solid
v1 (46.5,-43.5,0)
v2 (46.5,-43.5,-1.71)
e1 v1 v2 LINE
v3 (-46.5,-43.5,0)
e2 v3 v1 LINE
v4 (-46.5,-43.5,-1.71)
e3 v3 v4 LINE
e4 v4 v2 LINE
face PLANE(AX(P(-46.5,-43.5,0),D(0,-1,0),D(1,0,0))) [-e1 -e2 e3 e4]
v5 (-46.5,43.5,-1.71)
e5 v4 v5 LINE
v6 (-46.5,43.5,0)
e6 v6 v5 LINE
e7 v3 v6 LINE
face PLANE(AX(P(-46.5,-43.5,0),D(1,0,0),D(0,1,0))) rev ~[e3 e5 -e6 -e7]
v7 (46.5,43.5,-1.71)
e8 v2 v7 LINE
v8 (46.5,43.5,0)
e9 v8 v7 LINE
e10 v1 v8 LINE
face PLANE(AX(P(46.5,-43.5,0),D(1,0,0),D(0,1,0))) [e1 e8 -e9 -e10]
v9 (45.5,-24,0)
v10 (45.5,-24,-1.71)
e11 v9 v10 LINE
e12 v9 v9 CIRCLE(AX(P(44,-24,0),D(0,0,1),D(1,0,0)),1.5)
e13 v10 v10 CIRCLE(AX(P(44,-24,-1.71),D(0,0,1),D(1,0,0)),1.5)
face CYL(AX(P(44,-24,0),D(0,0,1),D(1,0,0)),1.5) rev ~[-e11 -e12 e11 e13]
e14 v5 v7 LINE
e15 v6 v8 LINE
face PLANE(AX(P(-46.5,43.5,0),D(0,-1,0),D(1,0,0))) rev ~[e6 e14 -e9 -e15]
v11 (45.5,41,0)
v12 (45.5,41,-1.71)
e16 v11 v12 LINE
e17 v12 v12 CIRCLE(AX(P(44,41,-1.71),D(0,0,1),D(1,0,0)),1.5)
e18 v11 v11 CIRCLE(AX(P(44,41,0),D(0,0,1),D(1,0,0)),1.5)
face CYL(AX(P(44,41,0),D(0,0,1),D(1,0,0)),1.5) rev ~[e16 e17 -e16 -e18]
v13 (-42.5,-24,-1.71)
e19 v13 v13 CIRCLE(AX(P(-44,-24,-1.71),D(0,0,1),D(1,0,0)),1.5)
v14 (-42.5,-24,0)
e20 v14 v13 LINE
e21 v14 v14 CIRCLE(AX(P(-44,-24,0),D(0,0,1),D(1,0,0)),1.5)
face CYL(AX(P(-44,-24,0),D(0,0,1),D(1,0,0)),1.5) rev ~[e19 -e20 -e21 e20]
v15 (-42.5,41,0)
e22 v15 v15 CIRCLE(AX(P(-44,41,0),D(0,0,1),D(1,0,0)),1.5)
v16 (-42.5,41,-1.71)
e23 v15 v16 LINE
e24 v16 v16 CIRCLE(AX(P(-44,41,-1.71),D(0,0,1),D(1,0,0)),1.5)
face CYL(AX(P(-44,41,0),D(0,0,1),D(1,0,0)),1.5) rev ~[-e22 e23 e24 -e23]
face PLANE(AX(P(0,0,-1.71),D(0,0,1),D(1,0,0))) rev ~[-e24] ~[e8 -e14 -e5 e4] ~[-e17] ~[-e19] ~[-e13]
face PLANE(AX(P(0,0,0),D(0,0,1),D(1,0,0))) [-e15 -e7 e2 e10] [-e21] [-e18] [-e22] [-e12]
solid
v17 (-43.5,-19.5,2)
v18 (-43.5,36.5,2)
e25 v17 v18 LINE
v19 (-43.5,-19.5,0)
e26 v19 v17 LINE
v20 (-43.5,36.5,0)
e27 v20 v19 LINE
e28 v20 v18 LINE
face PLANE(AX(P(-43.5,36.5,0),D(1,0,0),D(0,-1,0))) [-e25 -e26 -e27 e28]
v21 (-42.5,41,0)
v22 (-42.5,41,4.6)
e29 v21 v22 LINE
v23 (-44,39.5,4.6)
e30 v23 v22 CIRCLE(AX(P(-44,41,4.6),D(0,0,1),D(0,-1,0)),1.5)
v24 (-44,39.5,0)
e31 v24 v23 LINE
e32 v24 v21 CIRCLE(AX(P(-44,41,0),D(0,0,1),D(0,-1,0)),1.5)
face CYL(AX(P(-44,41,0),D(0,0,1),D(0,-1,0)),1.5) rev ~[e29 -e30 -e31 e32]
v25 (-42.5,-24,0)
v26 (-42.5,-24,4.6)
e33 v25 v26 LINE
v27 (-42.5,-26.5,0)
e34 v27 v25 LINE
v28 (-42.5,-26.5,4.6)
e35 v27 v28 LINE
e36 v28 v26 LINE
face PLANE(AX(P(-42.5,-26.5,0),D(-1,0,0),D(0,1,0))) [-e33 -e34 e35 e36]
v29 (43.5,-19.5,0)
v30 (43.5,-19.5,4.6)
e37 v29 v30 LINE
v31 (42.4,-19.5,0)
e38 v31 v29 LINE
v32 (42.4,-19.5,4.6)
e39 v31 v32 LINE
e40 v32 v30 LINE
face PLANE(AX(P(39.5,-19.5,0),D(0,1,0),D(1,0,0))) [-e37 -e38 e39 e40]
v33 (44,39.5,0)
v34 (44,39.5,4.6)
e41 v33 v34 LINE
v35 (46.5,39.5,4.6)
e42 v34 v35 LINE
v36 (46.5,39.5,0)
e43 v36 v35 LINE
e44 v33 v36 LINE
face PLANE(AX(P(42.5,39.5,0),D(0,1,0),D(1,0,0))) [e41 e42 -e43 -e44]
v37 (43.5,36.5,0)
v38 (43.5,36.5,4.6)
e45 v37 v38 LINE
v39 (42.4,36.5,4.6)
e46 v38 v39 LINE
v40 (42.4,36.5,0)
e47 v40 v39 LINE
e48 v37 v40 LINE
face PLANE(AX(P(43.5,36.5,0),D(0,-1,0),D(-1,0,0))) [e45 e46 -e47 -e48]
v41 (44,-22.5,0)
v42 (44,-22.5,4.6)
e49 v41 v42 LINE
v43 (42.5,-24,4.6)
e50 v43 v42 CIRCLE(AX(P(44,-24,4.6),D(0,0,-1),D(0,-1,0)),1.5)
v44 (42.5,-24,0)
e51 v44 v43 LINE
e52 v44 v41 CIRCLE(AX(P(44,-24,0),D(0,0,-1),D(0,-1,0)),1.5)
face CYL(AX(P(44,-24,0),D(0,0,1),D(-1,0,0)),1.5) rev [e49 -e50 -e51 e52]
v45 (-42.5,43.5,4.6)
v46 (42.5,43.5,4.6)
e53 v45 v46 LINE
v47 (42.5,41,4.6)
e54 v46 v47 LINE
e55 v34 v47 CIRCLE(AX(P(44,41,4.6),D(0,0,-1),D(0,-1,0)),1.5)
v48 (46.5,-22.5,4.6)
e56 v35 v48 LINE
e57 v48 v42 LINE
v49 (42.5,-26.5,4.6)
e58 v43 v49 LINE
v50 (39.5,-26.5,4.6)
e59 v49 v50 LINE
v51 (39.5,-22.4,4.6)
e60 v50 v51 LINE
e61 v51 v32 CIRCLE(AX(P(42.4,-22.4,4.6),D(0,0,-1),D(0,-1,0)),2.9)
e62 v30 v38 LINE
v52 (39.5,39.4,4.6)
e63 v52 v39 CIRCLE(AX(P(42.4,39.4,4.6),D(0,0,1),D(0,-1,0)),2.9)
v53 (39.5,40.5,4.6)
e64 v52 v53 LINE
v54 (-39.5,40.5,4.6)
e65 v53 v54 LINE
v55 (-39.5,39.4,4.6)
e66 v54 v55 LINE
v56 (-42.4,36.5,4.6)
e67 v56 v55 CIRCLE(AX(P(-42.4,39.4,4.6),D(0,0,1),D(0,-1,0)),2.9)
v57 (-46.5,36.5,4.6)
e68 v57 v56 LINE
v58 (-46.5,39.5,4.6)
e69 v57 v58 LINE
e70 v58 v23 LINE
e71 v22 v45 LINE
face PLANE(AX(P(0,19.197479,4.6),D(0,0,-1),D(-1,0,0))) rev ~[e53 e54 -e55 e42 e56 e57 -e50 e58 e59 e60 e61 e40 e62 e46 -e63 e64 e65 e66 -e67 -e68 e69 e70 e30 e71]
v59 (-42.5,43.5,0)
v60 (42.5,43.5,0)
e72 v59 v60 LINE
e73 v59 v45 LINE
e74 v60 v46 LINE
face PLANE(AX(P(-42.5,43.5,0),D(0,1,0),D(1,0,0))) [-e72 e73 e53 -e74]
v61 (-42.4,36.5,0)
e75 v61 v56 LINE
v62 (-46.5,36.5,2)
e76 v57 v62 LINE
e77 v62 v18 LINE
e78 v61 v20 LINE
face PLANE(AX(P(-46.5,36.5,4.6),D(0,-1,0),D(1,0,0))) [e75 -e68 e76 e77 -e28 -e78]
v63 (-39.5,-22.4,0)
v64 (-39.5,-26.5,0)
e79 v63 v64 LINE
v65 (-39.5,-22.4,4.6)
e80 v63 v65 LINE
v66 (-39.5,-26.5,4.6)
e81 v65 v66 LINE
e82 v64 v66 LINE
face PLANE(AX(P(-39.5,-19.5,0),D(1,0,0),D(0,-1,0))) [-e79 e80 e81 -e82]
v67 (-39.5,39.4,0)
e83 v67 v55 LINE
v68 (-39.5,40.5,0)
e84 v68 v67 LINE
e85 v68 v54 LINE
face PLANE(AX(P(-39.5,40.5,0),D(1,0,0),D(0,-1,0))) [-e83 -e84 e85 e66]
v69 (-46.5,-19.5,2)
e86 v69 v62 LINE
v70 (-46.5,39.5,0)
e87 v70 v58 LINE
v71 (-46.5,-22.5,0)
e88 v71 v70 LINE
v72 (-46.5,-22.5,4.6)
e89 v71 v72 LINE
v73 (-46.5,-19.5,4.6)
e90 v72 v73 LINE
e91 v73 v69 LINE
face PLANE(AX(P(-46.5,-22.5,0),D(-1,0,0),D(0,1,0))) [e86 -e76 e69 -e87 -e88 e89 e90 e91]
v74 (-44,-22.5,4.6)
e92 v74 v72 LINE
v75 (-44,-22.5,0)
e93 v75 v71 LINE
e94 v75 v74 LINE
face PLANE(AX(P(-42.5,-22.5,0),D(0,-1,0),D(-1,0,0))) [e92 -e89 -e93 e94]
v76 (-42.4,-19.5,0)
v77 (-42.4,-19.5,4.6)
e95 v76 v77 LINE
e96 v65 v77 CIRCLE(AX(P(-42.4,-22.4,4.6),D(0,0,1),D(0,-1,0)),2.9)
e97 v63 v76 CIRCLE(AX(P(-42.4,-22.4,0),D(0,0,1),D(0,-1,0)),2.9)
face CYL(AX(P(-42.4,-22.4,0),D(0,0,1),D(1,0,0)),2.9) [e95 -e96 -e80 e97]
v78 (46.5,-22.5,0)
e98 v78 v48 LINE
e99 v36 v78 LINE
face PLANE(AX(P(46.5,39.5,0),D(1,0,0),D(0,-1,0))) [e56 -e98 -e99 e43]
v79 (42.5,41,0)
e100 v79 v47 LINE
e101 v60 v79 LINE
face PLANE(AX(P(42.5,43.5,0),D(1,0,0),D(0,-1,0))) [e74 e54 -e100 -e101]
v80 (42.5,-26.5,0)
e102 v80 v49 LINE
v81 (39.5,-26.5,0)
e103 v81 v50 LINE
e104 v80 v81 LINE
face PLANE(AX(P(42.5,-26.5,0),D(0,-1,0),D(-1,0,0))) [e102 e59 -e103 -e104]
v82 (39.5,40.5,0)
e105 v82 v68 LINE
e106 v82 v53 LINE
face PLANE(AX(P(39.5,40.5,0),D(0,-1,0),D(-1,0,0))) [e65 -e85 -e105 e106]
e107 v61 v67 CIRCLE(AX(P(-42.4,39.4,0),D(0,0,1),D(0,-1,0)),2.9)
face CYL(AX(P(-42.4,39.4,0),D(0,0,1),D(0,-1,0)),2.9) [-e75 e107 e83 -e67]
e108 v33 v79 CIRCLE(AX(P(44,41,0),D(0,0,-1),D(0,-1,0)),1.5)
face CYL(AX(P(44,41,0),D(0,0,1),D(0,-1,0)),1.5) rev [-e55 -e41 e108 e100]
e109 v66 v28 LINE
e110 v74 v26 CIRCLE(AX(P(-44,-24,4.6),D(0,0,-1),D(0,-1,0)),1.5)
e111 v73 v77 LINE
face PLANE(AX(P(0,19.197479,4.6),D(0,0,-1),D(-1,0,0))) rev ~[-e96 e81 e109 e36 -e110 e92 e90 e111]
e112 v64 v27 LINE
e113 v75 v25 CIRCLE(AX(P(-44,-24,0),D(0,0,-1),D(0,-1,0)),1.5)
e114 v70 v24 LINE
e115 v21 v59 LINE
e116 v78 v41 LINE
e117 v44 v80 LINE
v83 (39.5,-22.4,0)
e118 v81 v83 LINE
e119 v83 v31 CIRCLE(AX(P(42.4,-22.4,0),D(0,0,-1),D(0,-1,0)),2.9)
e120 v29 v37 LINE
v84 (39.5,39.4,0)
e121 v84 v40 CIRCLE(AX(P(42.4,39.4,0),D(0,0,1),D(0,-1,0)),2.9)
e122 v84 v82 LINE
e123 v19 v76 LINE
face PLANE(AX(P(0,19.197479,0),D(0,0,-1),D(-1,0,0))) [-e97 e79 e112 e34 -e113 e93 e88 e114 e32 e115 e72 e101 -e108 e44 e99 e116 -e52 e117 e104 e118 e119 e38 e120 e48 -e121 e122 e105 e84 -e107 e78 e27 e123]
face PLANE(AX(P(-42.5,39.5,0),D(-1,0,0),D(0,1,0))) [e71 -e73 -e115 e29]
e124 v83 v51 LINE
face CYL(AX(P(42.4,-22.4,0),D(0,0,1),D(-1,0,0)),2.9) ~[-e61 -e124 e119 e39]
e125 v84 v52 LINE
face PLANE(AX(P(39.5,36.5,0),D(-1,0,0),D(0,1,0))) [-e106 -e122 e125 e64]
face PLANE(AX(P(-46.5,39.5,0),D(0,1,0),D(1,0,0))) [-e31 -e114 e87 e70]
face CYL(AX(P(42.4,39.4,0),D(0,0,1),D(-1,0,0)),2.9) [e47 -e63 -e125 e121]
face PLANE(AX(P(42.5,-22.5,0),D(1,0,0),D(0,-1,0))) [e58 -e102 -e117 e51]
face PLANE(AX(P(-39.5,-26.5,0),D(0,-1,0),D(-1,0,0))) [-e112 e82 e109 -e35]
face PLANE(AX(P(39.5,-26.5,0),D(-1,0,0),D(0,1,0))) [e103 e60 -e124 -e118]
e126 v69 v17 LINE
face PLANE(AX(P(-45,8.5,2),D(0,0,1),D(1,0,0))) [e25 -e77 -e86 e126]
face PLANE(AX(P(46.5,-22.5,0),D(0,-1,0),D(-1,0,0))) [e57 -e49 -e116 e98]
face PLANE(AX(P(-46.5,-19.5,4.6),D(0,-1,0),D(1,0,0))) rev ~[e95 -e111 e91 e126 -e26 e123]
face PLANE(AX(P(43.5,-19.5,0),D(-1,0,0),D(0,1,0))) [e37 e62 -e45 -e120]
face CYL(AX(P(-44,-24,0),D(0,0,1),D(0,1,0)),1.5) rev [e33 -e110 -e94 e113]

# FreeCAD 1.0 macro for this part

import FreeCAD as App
import Part
import Sketcher
from FreeCAD import Vector
Q = App.Units.Quantity


def edges_at(feature, points):
    """Names of the edges that pass closest to the given points."""
    edges = feature.Shape.Edges
    near = lambda p: min(range(len(edges)), key=lambda i: edges[i].distToShape(Part.Vertex(*p))[0])
    return sorted({f"Edge{near(p) + 1}" for p in points})


def add_polygon(sketch, points):
    """Adds a closed chain of lines whose ends are joined by coincident constraints."""
    first, n = sketch.GeometryCount, len(points)
    for a, b in zip(points, points[1:] + points[:1]):
        sketch.addGeometry(Part.LineSegment(App.Vector(*a, 0), App.Vector(*b, 0)), False)
    for i in range(n):
        sketch.addConstraint(Sketcher.Constraint("Coincident", first + i, 2, first + (i + 1) % n, 1))

doc = App.newDocument("Part")
params = doc.addObject("Spreadsheet::Sheet", "Params")
for row, (alias, value) in enumerate([
    ("sketch1_diameter", "3 mm"),
    ("sketch1_width", "93 mm"),
    ("sketch1_height", "87 mm"),
    ("pad1_length", "1.71 mm"),
    ("sketch2_width", "4 mm"),
    ("sketch2_width2", "3 mm"),
    ("sketch2_width3", "79 mm"),
    ("sketch2_height", "62 mm"),
    ("sketch2_height2", "7 mm"),
    ("pad2_length", "4.6 mm"),
    ("sketch3_width", "3 mm"),
    ("sketch3_height", "56 mm"),
    ("pocket1_length", "2.6 mm"),
    ("fillet_radius", "1.5 mm"),
    ("fillet2_radius", "2.9 mm"),
], start=1):
    params.set(f"A{row}", alias)
    params.set(f"B{row}", "=" + value)
    params.setAlias(f"B{row}", alias)

body = doc.addObject("PartDesign::Body", "Body")

# Sketch on XY plane
sketch1 = body.newObject("Sketcher::SketchObject", "Sketch")
sketch1.AttachmentSupport = (doc.getObject("XY_Plane"), [""])
sketch1.MapMode = "FlatFace"
add_polygon(sketch1, [(-46.5, 43.5), (-46.5, -43.5), (46.5, -43.5), (46.5, 43.5)])  # lines 0-3
sketch1.addGeometry(Part.Circle(Vector(-44, -24, 0), Vector(0, 0, 1), 1.5), False)  # 4
sketch1.addGeometry(Part.Circle(Vector(44, -24, 0), Vector(0, 0, 1), 1.5), False)  # 5
sketch1.addGeometry(Part.Circle(Vector(-44, 41, 0), Vector(0, 0, 1), 1.5), False)  # 6
sketch1.addGeometry(Part.Circle(Vector(44, 41, 0), Vector(0, 0, 1), 1.5), False)  # 7
sketch1.addConstraint([
    Sketcher.Constraint("Vertical", 0),
    Sketcher.Constraint("Horizontal", 1),
    Sketcher.Constraint("Vertical", 2),
    Sketcher.Constraint("Horizontal", 3),
    Sketcher.Constraint("Equal", 4, 5),
    Sketcher.Constraint("Equal", 5, 6),
    Sketcher.Constraint("Equal", 6, 7),
    Sketcher.Constraint("Symmetric", 0, 2, 2, 2, -1, 1),
    Sketcher.Constraint("Symmetric", 4, 3, 5, 3, -2),
    Sketcher.Constraint("Symmetric", 6, 3, 7, 3, -2),
    Sketcher.Constraint("Vertical", 4, 3, 6, 3),
    Sketcher.Constraint("Diameter", 4, Q("3 mm")),
    Sketcher.Constraint("DistanceX", 1, 1, 1, 2, Q("93 mm")),
    Sketcher.Constraint("DistanceY", 0, 2, 0, 1, Q("87 mm")),
    Sketcher.Constraint("DistanceX", 4, 3, -1, 1, Q("44 mm")),
    Sketcher.Constraint("DistanceY", 4, 3, -1, 1, Q("24 mm")),
    Sketcher.Constraint("DistanceY", -1, 1, 6, 3, Q("41 mm")),
])
sketch1.setExpression("Constraints[15]", "Params.sketch1_diameter")
sketch1.setExpression("Constraints[16]", "Params.sketch1_width")
sketch1.setExpression("Constraints[17]", "Params.sketch1_height")
pad1 = body.newObject("PartDesign::Pad", "Pad")
pad1.Profile = sketch1
pad1.setExpression("Length", "Params.pad1_length")
pad1.Reversed = True
body2 = doc.addObject("PartDesign::Body", "Body001")

# Sketch on XY plane
sketch2 = body2.newObject("Sketcher::SketchObject", "Sketch001")
sketch2.AttachmentSupport = (doc.getObject("XY_Plane001"), [""])
sketch2.MapMode = "FlatFace"
add_polygon(sketch2, [(-42.5, 39.5), (-46.5, 39.5), (-46.5, -22.5), (-42.5, -22.5), (-42.5, -26.5), (-39.5, -26.5), (-39.5, -19.5), (-43.5, -19.5), (-43.5, 36.5), (-39.5, 36.5), (-39.5, 40.5), (39.5, 40.5), (39.5, 36.5), (43.5, 36.5), (43.5, -19.5), (39.5, -19.5), (39.5, -26.5), (42.5, -26.5), (42.5, -22.5), (46.5, -22.5), (46.5, 39.5), (42.5, 39.5), (42.5, 43.5), (-42.5, 43.5)])  # lines 0-23
sketch2.addConstraint([
    Sketcher.Constraint("Horizontal", 0),
    Sketcher.Constraint("Vertical", 1),
    Sketcher.Constraint("Horizontal", 2),
    Sketcher.Constraint("Vertical", 3),
    Sketcher.Constraint("Horizontal", 4),
    Sketcher.Constraint("Vertical", 5),
    Sketcher.Constraint("Horizontal", 6),
    Sketcher.Constraint("Vertical", 7),
    Sketcher.Constraint("Horizontal", 8),
    Sketcher.Constraint("Vertical", 9),
    Sketcher.Constraint("Horizontal", 10),
    Sketcher.Constraint("Vertical", 11),
    Sketcher.Constraint("Horizontal", 12),
    Sketcher.Constraint("Vertical", 13),
    Sketcher.Constraint("Horizontal", 14),
    Sketcher.Constraint("Vertical", 15),
    Sketcher.Constraint("Horizontal", 16),
    Sketcher.Constraint("Vertical", 17),
    Sketcher.Constraint("Horizontal", 18),
    Sketcher.Constraint("Vertical", 19),
    Sketcher.Constraint("Horizontal", 20),
    Sketcher.Constraint("Vertical", 21),
    Sketcher.Constraint("Horizontal", 22),
    Sketcher.Constraint("Vertical", 23),
    Sketcher.Constraint("Symmetric", 8, 2, 11, 2, -2),
    Sketcher.Constraint("Symmetric", 6, 2, 13, 2, -2),
    Sketcher.Constraint("Symmetric", 4, 2, 15, 2, -2),
    Sketcher.Constraint("Symmetric", 2, 2, 17, 2, -2),
    Sketcher.Constraint("Symmetric", 0, 2, 19, 2, -2),
    Sketcher.Constraint("Vertical", 5, 2, 8, 2),
    Sketcher.Constraint("Vertical", 17, 2, 20, 2),
    Sketcher.Constraint("Vertical", 3, 2, 22, 2),
    Sketcher.Constraint("Equal", 2, 6),
    Sketcher.Constraint("Equal", 20, 3),
    Sketcher.Constraint("Equal", 3, 9),
    Sketcher.Constraint("Equal", 17, 21),
    Sketcher.Constraint("DistanceX", 0, 2, 0, 1, Q("4 mm")),
    Sketcher.Constraint("DistanceX", 4, 1, 4, 2, Q("3 mm")),
    Sketcher.Constraint("DistanceX", 10, 1, 10, 2, Q("79 mm")),
    Sketcher.Constraint("DistanceY", 1, 2, 1, 1, Q("62 mm")),
    Sketcher.Constraint("DistanceY", 5, 1, 5, 2, Q("7 mm")),
    Sketcher.Constraint("DistanceY", 7, 1, 7, 2, Q("56 mm")),
    Sketcher.Constraint("DistanceY", -1, 1, 0, 2, Q("39.5 mm")),
])
sketch2.setExpression("Constraints[60]", "Params.sketch2_width")
sketch2.setExpression("Constraints[61]", "Params.sketch2_width2")
sketch2.setExpression("Constraints[62]", "Params.sketch2_width3")
sketch2.setExpression("Constraints[63]", "Params.sketch2_height")
sketch2.setExpression("Constraints[64]", "Params.sketch2_height2")
pad2 = body2.newObject("PartDesign::Pad", "Pad001")
pad2.Profile = sketch2
pad2.setExpression("Length", "Params.pad2_length")

# Sketch on XY plane
sketch3 = body2.newObject("Sketcher::SketchObject", "Sketch002")
sketch3.AttachmentSupport = (doc.getObject("XY_Plane001"), [""])
sketch3.MapMode = "FlatFace"
sketch3.AttachmentOffset = App.Placement(Vector(0, 0, 4.6), App.Rotation())
add_polygon(sketch3, [(-46.5, 36.5), (-46.5, -19.5), (-43.5, -19.5), (-43.5, 36.5)])  # lines 0-3
sketch3.addConstraint([
    Sketcher.Constraint("Vertical", 0),
    Sketcher.Constraint("Horizontal", 1),
    Sketcher.Constraint("Vertical", 2),
    Sketcher.Constraint("Horizontal", 3),
    Sketcher.Constraint("DistanceX", 1, 1, 1, 2, Q("3 mm")),
    Sketcher.Constraint("DistanceY", 0, 2, 0, 1, Q("56 mm")),
    Sketcher.Constraint("DistanceX", 0, 2, -1, 1, Q("46.5 mm")),
    Sketcher.Constraint("DistanceY", 0, 2, -1, 1, Q("19.5 mm")),
])
sketch3.setExpression("Constraints[8]", "Params.sketch3_width")
sketch3.setExpression("Constraints[9]", "Params.sketch3_height")
pocket1 = body2.newObject("PartDesign::Pocket", "Pocket")
pocket1.Profile = sketch3
pocket1.setExpression("Length", "Params.pocket1_length")
doc.recompute()

fillet = body2.newObject("PartDesign::Fillet", "Fillet")
fillet.Base = (pocket1, edges_at(pocket1, [
    (42.5, -22.5, 2.3),
    (42.5, 39.5, 2.3),
    (-42.5, 39.5, 2.3),
    (-42.5, -22.5, 2.3),
]))
fillet.setExpression("Radius", "Params.fillet_radius")
doc.recompute()

fillet2 = body2.newObject("PartDesign::Fillet", "Fillet001")
fillet2.Base = (fillet, edges_at(fillet, [
    (39.5, 36.5, 2.3),
    (39.5, -19.5, 2.3),
    (-39.5, 36.5, 2.3),
    (-39.5, -19.5, 2.3),
]))
fillet2.setExpression("Radius", "Params.fillet2_radius")

doc.recompute()
